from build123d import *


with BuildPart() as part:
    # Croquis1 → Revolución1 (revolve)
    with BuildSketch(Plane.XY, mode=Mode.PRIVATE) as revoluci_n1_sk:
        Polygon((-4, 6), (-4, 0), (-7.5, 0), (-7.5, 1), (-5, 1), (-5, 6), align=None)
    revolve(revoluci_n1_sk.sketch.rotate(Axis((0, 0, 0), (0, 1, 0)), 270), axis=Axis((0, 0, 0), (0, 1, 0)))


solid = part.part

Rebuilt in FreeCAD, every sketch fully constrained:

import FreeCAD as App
import Part
import Sketcher

V = App.Vector

doc = App.newDocument("Part")
params = doc.addObject("Spreadsheet::Sheet", "Params")
for row, (alias, value) in enumerate([
    ("sketch1_width", "1 mm"),
    ("sketch1_height", "6 mm"),
    ("sketch1_width2", "2.5 mm"),
    ("revolution_angle", "360 deg"),
], start=1):
    params.set(f"A{row}", alias)
    params.set(f"B{row}", "=" + value)
    params.setAlias(f"B{row}", alias)

body = doc.addObject("PartDesign::Body", "Body")

# Sketch on XY plane
sketch1 = body.newObject("Sketcher::SketchObject", "Sketch")
sketch1.AttachmentSupport = (doc.getObject("XY_Plane"), [""])
sketch1.MapMode = "FlatFace"
sketch1.addGeometry([
    Part.LineSegment(V(-4, 0, 0), V(-4, 6, 0)),  # 0
    Part.LineSegment(V(-4, 6, 0), V(-5, 6, 0)),  # 1
    Part.LineSegment(V(-5, 6, 0), V(-5, 1, 0)),  # 2
    Part.LineSegment(V(-5, 1, 0), V(-7.5, 1, 0)),  # 3
    Part.LineSegment(V(-7.5, 1, 0), V(-7.5, 0, 0)),  # 4
    Part.LineSegment(V(-7.5, 0, 0), V(-4, 0, 0)),  # 5
], False)
sketch1.addConstraint([
    Sketcher.Constraint("Coincident", 0, 2, 1, 1),
    Sketcher.Constraint("Coincident", 1, 2, 2, 1),
    Sketcher.Constraint("Coincident", 2, 2, 3, 1),
    Sketcher.Constraint("Coincident", 3, 2, 4, 1),
    Sketcher.Constraint("Coincident", 4, 2, 5, 1),
    Sketcher.Constraint("Coincident", 5, 2, 0, 1),
    Sketcher.Constraint("Vertical", 0),
    Sketcher.Constraint("Horizontal", 1),
    Sketcher.Constraint("Vertical", 2),
    Sketcher.Constraint("Horizontal", 3),
    Sketcher.Constraint("Vertical", 4),
    Sketcher.Constraint("Horizontal", 5),
    Sketcher.Constraint("PointOnObject", 4, 2, -1),
    Sketcher.Constraint("Equal", 1, 4),
    Sketcher.Constraint("DistanceX", 1, 2, 1, 1, 1.0),
    Sketcher.Constraint("DistanceY", 0, 1, 0, 2, 6.0),
    Sketcher.Constraint("DistanceX", 3, 2, 3, 1, 2.5),
    Sketcher.Constraint("DistanceX", 0, 2, -1, 1, 4.0),
])
sketch1.setExpression("Constraints[14]", "Params.sketch1_width")
sketch1.setExpression("Constraints[15]", "Params.sketch1_height")
sketch1.setExpression("Constraints[16]", "Params.sketch1_width2")
revolution = body.newObject("PartDesign::Revolution", "Revolution")
revolution.Profile = sketch1
revolution.ReferenceAxis = (sketch1, ["V_Axis"])
revolution.setExpression("Angle", "Params.revolution_angle")

doc.recompute()
